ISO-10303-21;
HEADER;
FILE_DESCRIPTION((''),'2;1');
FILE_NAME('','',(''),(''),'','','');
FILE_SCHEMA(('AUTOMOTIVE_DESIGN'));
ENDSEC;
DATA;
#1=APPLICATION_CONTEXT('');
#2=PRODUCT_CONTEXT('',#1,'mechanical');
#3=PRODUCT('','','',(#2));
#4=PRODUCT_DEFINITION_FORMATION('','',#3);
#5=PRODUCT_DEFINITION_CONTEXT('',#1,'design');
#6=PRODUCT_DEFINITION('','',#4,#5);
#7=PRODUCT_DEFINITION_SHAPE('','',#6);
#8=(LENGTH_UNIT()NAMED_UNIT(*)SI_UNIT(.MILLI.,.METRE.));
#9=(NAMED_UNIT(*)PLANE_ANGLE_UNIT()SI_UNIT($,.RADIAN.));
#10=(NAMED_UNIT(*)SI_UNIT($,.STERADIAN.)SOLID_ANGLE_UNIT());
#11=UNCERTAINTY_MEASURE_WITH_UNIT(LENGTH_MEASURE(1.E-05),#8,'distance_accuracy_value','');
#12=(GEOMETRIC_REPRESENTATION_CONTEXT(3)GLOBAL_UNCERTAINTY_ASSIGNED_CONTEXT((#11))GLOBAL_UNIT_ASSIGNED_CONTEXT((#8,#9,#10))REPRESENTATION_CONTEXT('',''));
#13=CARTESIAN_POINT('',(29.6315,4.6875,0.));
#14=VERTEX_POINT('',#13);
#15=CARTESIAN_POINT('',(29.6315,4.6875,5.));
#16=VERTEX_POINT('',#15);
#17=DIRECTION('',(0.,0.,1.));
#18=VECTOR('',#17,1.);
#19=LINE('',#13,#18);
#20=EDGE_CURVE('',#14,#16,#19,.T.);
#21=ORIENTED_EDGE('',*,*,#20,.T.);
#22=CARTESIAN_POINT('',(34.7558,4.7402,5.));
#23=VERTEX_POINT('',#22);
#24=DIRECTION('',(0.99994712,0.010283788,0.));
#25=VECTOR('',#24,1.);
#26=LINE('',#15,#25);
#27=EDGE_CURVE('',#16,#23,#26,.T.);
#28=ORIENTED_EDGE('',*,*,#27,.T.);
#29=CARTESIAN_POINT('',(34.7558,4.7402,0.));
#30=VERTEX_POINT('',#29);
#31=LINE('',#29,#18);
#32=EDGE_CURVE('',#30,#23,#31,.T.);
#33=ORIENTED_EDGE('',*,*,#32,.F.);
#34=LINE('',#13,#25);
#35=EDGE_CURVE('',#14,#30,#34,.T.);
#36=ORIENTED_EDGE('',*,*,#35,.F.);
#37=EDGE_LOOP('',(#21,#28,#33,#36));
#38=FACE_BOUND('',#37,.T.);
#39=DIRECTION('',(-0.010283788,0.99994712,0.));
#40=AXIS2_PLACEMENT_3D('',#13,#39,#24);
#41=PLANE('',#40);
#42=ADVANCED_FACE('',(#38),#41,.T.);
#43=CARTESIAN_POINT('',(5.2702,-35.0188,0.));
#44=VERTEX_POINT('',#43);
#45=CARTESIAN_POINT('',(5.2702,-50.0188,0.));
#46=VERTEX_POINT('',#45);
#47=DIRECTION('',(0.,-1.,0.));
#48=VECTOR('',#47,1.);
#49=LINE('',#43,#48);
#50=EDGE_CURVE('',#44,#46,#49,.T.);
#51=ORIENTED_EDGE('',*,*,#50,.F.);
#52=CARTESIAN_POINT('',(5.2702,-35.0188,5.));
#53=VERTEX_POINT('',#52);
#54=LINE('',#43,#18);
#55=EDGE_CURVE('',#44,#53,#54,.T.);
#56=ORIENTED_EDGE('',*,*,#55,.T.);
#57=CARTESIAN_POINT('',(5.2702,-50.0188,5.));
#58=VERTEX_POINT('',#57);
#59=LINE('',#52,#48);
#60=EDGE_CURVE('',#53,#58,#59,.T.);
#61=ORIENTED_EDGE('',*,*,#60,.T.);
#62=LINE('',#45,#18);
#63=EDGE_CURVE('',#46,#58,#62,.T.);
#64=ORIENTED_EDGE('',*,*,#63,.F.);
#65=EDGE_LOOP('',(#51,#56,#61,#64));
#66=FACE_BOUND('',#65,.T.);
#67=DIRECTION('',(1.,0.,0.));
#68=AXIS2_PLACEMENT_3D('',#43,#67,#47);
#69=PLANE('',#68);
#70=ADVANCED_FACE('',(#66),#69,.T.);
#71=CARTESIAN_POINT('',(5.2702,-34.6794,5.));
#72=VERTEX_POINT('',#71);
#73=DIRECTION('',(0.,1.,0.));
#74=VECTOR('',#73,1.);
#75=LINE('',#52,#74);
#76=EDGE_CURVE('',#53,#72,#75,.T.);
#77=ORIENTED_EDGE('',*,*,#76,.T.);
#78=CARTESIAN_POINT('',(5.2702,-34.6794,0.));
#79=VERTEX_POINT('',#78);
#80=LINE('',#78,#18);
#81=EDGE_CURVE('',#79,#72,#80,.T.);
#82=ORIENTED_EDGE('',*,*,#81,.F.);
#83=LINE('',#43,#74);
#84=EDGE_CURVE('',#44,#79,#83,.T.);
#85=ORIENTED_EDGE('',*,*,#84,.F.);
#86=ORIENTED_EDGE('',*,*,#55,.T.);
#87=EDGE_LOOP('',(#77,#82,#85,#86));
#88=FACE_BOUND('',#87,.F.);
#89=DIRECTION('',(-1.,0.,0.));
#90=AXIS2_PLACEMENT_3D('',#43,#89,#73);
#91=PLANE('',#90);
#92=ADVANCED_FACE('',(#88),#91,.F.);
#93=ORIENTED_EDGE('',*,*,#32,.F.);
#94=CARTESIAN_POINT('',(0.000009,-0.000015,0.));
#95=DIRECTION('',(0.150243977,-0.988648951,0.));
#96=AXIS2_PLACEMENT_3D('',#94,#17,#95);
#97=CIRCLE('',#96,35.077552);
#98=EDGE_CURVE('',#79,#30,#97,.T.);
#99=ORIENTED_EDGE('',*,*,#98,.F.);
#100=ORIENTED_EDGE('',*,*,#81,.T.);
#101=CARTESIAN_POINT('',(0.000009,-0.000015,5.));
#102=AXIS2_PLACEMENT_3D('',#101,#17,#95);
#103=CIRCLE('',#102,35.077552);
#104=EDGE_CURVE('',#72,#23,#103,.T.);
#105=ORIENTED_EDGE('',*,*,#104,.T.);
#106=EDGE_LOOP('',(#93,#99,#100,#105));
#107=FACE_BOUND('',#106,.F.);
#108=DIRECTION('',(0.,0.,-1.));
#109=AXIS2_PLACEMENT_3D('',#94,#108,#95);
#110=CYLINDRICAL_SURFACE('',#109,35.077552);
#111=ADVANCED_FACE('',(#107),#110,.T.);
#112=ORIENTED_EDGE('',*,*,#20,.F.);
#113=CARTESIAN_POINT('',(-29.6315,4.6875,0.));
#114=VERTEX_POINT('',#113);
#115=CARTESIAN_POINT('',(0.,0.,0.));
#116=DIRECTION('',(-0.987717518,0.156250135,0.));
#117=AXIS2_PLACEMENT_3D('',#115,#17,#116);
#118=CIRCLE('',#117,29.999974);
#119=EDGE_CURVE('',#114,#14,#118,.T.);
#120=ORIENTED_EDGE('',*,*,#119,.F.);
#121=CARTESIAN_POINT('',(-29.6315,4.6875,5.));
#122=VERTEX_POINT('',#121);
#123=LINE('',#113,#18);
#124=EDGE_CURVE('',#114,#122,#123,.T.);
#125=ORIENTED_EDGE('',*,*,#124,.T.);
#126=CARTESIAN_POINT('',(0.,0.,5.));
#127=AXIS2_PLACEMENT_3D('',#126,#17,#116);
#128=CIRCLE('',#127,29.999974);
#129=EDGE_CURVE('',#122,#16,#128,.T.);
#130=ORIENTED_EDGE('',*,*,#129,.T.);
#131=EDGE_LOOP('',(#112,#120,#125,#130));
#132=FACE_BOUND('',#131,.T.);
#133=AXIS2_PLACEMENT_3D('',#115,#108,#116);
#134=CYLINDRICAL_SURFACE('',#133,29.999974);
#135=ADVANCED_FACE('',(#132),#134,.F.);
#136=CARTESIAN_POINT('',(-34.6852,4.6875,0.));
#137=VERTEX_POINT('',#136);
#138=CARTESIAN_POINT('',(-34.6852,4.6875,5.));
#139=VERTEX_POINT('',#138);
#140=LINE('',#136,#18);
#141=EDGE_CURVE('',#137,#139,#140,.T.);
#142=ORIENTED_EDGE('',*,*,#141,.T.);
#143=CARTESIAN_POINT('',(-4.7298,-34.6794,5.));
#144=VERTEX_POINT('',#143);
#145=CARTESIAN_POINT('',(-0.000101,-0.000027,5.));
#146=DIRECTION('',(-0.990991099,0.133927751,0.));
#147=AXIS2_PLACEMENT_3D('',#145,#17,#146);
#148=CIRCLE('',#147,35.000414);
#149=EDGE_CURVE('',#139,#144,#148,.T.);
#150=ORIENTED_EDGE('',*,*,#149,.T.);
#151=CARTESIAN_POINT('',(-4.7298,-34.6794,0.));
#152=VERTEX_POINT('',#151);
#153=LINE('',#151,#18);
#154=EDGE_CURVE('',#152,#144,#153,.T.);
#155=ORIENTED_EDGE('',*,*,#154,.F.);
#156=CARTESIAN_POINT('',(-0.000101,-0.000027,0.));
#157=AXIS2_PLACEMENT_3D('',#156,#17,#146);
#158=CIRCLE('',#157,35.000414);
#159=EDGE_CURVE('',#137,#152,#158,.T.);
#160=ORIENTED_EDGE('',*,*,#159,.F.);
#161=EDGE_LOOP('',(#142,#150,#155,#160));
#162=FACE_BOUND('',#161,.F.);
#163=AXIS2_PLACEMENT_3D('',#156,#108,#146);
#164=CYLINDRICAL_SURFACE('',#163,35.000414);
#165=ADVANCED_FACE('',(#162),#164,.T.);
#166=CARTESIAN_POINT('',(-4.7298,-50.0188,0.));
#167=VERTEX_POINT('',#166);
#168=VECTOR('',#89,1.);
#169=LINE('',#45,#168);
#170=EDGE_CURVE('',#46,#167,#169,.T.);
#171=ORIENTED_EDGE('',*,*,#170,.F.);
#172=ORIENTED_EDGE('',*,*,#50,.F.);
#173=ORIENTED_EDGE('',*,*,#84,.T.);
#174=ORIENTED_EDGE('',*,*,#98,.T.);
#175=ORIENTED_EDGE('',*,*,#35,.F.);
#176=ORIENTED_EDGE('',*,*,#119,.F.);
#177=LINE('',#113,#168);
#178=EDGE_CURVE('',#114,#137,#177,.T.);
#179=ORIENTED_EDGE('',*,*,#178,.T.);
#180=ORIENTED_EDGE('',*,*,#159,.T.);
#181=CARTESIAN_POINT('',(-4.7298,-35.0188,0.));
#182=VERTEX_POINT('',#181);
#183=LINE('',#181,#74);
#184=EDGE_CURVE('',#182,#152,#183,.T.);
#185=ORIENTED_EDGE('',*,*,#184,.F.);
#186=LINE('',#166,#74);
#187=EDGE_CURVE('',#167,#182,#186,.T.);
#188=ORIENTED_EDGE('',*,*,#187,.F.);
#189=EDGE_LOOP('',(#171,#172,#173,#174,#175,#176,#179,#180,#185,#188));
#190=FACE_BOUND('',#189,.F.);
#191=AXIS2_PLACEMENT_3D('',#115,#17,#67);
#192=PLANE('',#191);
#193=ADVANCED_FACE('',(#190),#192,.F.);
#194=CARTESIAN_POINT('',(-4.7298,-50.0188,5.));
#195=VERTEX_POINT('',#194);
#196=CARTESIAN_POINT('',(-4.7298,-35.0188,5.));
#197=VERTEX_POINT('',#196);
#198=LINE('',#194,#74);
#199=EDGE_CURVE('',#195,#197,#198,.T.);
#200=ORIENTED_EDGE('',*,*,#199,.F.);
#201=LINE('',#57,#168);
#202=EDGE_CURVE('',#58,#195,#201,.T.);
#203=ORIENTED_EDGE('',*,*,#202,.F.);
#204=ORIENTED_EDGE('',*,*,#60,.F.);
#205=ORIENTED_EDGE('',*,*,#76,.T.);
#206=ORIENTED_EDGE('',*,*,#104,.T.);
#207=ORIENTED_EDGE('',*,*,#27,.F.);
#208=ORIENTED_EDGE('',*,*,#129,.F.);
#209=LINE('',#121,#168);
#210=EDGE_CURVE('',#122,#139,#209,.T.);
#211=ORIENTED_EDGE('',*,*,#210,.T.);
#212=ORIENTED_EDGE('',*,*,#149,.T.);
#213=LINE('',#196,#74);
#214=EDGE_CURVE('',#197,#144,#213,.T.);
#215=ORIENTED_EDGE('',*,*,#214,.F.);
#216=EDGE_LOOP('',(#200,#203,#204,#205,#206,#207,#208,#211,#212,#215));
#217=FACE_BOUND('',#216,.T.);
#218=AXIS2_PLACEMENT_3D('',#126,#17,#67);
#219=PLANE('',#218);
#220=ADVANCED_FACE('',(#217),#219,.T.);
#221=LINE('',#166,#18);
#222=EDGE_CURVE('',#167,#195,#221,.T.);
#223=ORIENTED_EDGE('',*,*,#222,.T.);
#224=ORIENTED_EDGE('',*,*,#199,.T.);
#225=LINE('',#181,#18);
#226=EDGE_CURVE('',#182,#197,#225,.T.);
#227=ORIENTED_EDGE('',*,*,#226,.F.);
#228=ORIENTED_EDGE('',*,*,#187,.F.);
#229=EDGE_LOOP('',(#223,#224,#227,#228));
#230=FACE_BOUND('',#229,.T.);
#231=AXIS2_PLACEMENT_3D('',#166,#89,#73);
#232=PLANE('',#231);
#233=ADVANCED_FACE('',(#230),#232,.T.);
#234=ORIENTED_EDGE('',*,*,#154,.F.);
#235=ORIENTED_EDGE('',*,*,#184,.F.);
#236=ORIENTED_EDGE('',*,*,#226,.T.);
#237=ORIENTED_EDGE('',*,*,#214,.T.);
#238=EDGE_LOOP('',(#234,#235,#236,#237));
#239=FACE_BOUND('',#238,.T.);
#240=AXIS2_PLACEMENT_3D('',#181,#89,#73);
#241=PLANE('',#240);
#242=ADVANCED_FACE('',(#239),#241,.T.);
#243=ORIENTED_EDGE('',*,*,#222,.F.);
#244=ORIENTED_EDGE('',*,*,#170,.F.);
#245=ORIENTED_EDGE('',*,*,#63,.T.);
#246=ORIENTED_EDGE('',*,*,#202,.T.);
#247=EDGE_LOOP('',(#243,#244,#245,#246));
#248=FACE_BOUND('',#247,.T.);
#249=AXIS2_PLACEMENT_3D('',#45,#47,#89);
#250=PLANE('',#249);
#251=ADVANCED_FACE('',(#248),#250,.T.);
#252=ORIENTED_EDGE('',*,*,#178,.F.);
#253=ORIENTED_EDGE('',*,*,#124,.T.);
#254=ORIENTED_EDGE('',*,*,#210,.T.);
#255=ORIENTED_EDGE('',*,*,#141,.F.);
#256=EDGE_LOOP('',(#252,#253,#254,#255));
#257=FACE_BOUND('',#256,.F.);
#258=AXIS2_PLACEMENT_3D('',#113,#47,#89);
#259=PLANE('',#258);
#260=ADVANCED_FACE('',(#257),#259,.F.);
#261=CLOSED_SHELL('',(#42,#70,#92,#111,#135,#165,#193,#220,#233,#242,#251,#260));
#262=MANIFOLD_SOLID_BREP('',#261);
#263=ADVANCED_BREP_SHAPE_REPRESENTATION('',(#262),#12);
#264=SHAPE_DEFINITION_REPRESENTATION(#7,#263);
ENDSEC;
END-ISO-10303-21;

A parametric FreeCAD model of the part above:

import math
import FreeCAD as App
import Part
import Sketcher
Q = App.Units.Quantity

doc = App.newDocument("Part")
params = doc.addObject("Spreadsheet::Sheet", "Params")
for row, (alias, value) in enumerate([
    ("sketch1_radius", "30 mm"),
    ("sketch1_width", "10 mm"),
    ("pad1_length", "5 mm"),
], start=1):
    params.set(f"A{row}", alias)
    params.set(f"B{row}", "=" + value)
    params.setAlias(f"B{row}", alias)

body = doc.addObject("PartDesign::Body", "Body")

sketch1 = body.newObject("Sketcher::SketchObject", "Sketch")
sketch1.AttachmentSupport = (doc.getObject("XY_Plane"), [""])
sketch1.MapMode = "FlatFace"
sketch1.addGeometry([
    Part.ArcOfCircle(Part.Circle(App.Vector(0, 0, 0), App.Vector(0, 0, 1), 30), math.radians(171), math.radians(369)),
    Part.LineSegment(App.Vector(-30, 5, 0), App.Vector(-35, 5, 0)),
    Part.ArcOfCircle(Part.Circle(App.Vector(0, 0, 0), App.Vector(0, 0, 1), 35), math.radians(172), math.radians(262)),
    Part.LineSegment(App.Vector(-5, -35, 0), App.Vector(-5, -50, 0)),
    Part.LineSegment(App.Vector(-5, -50, 0), App.Vector(5, -50, 0)),
    Part.LineSegment(App.Vector(5, -50, 0), App.Vector(5, -35, 0)),
    Part.ArcOfCircle(Part.Circle(App.Vector(0, 0, 0), App.Vector(0, 0, 1), 35), math.radians(-81), math.radians(8)),
    Part.LineSegment(App.Vector(35, 5, 0), App.Vector(30, 5, 0)),
], False)
sketch1.addConstraint([
    Sketcher.Constraint("Coincident", 0, 1, 1, 1),
    Sketcher.Constraint("Coincident", 1, 2, 2, 1),
    Sketcher.Constraint("Coincident", 2, 2, 3, 1),
    Sketcher.Constraint("Coincident", 3, 2, 4, 1),
    Sketcher.Constraint("Coincident", 4, 2, 5, 1),
    Sketcher.Constraint("Coincident", 5, 2, 6, 1),
    Sketcher.Constraint("Coincident", 6, 2, 7, 1),
    Sketcher.Constraint("Coincident", 7, 2, 0, 2),
    Sketcher.Constraint("Horizontal", 1),
    Sketcher.Constraint("Vertical", 3),
    Sketcher.Constraint("Horizontal", 4),
    Sketcher.Constraint("Vertical", 5),
    Sketcher.Constraint("Coincident", 0, 3, -1, 1),
    Sketcher.Constraint("Coincident", 2, 3, -1, 1),
    Sketcher.Constraint("Coincident", 6, 3, -1, 1),
    Sketcher.Constraint("Horizontal", 2, 2, 5, 2),
    Sketcher.Constraint("Horizontal", 1, 2, 7, 2),
    Sketcher.Constraint("Radius", 0, 30.0),
    Sketcher.Constraint("DistanceX", 4, 1, 4, 2, 10.0),
    Sketcher.Constraint("Angle", 7, Q("-179.4108 deg")),
    Sketcher.Constraint("Radius", 2, 35.0005),
    Sketcher.Constraint("Radius", 6, 35.0776),
    Sketcher.Constraint("DistanceX", 1, 2, 1, 1, 5.0537),
    Sketcher.Constraint("DistanceY", 3, 2, 3, 1, 15.3394),
])
sketch1.setExpression("Constraints[17]", "Params.sketch1_radius")
sketch1.setExpression("Constraints[18]", "Params.sketch1_width")
pad1 = body.newObject("PartDesign::Pad", "Pad")
pad1.Profile = sketch1
pad1.setExpression("Length", "Params.pad1_length")

doc.recompute()
